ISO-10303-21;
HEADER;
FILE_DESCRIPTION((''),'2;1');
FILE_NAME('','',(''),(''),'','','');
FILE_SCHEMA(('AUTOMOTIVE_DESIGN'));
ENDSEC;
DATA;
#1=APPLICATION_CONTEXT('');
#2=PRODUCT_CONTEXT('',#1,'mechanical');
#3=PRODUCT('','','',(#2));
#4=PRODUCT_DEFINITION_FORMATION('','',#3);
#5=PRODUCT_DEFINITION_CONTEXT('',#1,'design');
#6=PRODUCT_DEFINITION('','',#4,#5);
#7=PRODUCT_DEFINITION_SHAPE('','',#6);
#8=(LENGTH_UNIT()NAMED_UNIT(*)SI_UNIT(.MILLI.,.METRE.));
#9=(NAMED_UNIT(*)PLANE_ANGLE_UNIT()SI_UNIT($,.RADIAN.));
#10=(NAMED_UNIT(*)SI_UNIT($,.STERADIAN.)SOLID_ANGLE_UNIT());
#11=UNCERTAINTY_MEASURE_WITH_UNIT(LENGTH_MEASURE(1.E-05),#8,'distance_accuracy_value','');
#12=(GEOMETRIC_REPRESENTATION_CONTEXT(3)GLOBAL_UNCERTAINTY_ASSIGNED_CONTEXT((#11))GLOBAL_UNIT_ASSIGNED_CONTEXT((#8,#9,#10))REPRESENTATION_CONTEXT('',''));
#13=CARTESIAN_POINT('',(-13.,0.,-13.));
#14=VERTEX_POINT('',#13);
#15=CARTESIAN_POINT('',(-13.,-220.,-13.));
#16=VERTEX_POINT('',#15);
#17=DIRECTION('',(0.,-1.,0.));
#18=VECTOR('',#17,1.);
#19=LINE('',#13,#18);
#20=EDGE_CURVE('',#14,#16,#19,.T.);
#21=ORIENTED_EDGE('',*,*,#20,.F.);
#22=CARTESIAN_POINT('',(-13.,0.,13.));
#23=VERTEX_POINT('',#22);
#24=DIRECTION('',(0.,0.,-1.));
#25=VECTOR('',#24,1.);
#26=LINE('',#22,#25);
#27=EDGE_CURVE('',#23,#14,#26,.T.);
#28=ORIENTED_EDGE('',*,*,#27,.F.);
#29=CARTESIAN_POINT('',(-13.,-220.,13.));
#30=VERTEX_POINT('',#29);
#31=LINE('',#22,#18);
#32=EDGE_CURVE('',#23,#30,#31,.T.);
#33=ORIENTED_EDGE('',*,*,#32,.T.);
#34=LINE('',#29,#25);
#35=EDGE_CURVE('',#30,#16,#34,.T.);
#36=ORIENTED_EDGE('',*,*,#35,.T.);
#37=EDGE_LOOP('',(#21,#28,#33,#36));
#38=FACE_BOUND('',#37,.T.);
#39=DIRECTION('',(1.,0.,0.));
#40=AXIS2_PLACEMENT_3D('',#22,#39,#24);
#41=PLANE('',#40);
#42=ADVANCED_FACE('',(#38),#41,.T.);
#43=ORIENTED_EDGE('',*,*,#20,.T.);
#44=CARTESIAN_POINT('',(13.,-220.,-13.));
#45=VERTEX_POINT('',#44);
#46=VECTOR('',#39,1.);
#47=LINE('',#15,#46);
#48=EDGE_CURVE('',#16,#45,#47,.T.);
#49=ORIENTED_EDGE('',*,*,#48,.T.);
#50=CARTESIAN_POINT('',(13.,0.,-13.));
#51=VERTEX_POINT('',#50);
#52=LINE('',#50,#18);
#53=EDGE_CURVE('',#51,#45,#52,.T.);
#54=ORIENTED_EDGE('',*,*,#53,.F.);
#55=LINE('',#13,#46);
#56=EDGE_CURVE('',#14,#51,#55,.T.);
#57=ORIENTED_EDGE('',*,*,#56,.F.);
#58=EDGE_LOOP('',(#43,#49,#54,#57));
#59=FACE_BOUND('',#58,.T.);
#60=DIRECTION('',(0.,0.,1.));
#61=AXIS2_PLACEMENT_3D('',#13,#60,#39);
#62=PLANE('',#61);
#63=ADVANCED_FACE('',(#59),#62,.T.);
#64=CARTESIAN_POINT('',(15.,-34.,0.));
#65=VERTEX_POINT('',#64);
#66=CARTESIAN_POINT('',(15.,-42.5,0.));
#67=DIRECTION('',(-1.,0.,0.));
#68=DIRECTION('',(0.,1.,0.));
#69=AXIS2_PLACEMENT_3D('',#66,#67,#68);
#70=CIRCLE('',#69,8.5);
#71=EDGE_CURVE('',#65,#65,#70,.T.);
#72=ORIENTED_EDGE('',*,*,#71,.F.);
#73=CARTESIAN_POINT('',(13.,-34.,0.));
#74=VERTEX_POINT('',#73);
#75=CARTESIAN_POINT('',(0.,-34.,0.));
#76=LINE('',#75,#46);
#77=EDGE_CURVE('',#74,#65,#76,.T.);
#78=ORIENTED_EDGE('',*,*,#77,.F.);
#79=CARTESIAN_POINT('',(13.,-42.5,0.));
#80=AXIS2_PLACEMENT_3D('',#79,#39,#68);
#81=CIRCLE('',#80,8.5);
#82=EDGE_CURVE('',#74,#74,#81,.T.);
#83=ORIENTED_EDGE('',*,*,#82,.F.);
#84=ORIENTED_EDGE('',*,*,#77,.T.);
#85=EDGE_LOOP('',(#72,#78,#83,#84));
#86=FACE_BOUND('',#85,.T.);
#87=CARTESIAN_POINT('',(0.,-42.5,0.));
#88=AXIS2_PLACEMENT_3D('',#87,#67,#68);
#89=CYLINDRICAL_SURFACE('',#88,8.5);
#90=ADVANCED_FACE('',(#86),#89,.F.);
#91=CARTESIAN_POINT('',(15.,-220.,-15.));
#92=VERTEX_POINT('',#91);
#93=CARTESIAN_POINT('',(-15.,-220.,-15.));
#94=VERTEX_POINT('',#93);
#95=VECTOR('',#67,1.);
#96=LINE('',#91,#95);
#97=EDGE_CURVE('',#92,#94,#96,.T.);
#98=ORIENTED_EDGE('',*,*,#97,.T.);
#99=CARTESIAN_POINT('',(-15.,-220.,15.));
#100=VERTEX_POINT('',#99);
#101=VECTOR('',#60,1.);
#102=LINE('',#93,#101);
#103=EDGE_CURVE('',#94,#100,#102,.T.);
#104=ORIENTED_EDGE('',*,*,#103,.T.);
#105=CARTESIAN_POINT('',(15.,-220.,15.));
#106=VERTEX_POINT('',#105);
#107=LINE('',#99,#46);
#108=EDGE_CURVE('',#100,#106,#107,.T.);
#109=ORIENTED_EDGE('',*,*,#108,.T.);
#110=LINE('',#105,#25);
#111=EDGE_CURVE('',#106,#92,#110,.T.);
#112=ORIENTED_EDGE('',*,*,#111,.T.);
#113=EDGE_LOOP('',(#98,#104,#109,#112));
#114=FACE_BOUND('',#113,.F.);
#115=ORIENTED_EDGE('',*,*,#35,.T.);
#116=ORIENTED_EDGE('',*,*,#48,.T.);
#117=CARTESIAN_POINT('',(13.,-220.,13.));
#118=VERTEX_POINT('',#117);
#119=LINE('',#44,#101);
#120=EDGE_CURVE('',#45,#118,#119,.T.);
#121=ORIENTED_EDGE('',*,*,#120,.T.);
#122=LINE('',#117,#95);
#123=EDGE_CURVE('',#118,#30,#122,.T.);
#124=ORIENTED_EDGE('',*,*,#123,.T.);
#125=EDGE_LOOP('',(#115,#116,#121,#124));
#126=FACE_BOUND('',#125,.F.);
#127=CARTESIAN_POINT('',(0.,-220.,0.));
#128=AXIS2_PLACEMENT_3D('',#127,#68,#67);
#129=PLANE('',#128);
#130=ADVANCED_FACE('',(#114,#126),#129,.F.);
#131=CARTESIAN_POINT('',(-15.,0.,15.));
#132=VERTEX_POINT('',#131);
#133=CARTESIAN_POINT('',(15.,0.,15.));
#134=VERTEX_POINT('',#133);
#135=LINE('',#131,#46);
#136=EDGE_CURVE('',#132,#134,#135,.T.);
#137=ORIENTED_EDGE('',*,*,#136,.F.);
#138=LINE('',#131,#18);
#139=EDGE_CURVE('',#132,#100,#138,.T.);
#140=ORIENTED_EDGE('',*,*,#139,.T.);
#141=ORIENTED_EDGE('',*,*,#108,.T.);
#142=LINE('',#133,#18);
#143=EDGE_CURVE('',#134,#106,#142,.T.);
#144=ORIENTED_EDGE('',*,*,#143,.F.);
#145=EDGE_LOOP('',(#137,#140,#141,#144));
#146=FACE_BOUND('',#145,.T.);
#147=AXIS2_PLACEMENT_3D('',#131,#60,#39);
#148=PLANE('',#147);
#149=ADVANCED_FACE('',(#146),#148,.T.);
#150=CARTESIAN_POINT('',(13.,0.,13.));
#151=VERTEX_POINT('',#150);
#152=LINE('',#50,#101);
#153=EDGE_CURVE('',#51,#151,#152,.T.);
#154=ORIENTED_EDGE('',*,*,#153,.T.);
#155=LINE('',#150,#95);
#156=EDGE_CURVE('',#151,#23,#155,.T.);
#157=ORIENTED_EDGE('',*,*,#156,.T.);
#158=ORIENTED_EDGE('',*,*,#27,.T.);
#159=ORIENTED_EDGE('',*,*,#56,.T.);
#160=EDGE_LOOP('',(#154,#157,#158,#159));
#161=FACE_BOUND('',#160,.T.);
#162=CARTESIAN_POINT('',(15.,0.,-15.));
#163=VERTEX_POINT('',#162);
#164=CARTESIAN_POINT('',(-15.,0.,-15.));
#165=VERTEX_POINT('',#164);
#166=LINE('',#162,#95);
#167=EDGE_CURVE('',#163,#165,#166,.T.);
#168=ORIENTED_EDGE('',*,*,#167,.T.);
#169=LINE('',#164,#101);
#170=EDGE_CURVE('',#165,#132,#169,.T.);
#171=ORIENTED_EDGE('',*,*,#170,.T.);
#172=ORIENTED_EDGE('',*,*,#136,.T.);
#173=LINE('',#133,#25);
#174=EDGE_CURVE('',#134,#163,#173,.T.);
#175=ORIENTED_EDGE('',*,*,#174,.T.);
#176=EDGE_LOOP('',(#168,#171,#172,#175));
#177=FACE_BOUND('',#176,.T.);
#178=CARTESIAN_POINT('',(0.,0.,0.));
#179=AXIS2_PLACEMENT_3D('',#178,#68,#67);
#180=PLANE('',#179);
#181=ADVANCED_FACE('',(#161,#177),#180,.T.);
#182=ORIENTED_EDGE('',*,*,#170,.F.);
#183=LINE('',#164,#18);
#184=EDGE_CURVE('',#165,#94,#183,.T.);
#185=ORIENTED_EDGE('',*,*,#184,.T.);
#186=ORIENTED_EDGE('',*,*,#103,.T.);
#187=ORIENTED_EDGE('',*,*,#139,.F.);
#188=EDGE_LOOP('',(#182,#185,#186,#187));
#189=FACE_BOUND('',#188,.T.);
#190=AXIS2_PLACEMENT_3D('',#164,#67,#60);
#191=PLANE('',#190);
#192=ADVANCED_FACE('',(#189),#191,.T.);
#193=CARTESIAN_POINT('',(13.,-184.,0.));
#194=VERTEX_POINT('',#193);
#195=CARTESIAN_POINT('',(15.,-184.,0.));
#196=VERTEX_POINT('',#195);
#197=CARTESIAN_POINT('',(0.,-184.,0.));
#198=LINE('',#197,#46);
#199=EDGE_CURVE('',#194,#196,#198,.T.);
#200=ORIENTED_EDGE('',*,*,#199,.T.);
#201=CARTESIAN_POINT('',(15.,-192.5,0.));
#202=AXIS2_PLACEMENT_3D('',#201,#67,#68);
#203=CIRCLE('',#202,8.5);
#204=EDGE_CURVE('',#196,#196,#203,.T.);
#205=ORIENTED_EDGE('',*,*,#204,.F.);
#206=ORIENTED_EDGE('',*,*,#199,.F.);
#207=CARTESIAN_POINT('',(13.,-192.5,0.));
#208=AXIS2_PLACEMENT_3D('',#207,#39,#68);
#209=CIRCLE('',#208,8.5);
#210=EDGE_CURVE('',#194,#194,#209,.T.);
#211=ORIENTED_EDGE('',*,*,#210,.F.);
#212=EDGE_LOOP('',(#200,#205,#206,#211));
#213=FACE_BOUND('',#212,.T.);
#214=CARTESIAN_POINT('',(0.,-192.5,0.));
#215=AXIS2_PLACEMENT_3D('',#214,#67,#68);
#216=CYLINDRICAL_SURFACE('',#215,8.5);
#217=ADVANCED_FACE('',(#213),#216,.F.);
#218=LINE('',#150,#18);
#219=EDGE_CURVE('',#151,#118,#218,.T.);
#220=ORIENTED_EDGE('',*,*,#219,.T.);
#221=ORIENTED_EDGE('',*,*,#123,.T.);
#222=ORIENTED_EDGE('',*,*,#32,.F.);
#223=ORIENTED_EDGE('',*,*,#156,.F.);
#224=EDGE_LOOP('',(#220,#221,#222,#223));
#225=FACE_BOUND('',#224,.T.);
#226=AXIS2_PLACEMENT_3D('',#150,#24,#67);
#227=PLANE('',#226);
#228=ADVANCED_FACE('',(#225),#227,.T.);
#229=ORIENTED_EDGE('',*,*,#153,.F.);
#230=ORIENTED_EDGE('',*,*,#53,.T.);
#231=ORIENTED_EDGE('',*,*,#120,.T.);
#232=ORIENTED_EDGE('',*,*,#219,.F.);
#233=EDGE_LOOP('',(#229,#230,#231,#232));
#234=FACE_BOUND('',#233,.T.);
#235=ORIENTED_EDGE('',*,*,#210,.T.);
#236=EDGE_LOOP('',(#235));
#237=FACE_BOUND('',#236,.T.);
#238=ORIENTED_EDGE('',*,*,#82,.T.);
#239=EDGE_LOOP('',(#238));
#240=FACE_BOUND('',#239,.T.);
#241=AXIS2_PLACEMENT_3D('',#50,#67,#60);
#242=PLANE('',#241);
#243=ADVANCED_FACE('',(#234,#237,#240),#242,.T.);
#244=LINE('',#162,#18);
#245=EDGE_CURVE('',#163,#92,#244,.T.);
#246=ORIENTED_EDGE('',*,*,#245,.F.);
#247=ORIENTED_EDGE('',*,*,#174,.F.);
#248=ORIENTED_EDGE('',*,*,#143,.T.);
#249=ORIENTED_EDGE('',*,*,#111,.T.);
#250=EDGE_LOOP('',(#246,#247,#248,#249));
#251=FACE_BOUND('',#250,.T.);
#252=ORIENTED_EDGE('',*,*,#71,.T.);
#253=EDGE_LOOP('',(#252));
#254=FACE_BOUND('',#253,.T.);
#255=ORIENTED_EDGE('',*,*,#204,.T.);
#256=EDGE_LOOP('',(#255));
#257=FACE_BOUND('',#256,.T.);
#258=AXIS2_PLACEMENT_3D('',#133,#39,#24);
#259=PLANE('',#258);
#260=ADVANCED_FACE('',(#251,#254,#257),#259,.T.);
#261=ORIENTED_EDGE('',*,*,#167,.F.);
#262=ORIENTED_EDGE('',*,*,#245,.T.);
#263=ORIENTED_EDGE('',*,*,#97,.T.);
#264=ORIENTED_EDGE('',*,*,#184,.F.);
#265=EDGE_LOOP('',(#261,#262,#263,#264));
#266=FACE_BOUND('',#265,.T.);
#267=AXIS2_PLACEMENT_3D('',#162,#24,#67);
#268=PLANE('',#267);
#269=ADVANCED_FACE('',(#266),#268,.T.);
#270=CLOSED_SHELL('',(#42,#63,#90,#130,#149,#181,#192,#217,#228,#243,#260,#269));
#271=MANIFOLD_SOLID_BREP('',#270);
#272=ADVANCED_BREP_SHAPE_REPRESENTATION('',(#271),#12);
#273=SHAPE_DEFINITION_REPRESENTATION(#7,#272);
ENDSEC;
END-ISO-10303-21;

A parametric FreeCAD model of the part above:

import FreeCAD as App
import Part
import Sketcher
from FreeCAD import Vector

doc = App.newDocument("Part")
body = doc.addObject("PartDesign::Body", "Body")

# Sketch on XZ plane
sketch1 = doc.addObject("Sketcher::SketchObject", "Sketch")
body.addObject(sketch1)
sketch1.AttachmentSupport = (doc.XZ_Plane, [""])
sketch1.MapMode = "FlatFace"
sketch1.addGeometry(Part.LineSegment(Vector(-15, -15, 0), Vector(-15, 15, 0)), False)
sketch1.addGeometry(Part.LineSegment(Vector(-15, 15, 0), Vector(15, 15, 0)), False)
sketch1.addGeometry(Part.LineSegment(Vector(15, 15, 0), Vector(15, -15, 0)), False)
sketch1.addGeometry(Part.LineSegment(Vector(15, -15, 0), Vector(-15, -15, 0)), False)
sketch1.addGeometry(Part.LineSegment(Vector(13, -13, 0), Vector(13, 13, 0)), False)
sketch1.addGeometry(Part.LineSegment(Vector(13, 13, 0), Vector(-13, 13, 0)), False)
sketch1.addGeometry(Part.LineSegment(Vector(-13, 13, 0), Vector(-13, -13, 0)), False)
sketch1.addGeometry(Part.LineSegment(Vector(-13, -13, 0), Vector(13, -13, 0)), False)
sketch1.addConstraint(Sketcher.Constraint("Coincident", 0, 2, 1, 1))
sketch1.addConstraint(Sketcher.Constraint("Coincident", 1, 2, 2, 1))
sketch1.addConstraint(Sketcher.Constraint("Coincident", 2, 2, 3, 1))
sketch1.addConstraint(Sketcher.Constraint("Coincident", 3, 2, 0, 1))
sketch1.addConstraint(Sketcher.Constraint("Coincident", 4, 2, 5, 1))
sketch1.addConstraint(Sketcher.Constraint("Coincident", 5, 2, 6, 1))
sketch1.addConstraint(Sketcher.Constraint("Coincident", 6, 2, 7, 1))
sketch1.addConstraint(Sketcher.Constraint("Coincident", 7, 2, 4, 1))
sketch1.addConstraint(Sketcher.Constraint("Vertical", 0))
sketch1.addConstraint(Sketcher.Constraint("Horizontal", 1))
sketch1.addConstraint(Sketcher.Constraint("Vertical", 2))
sketch1.addConstraint(Sketcher.Constraint("Horizontal", 3))
sketch1.addConstraint(Sketcher.Constraint("Vertical", 4))
sketch1.addConstraint(Sketcher.Constraint("Horizontal", 5))
sketch1.addConstraint(Sketcher.Constraint("Vertical", 6))
sketch1.addConstraint(Sketcher.Constraint("Horizontal", 7))
sketch1.addConstraint(Sketcher.Constraint("Symmetric", 0, 2, 2, 2, -1, 1))
sketch1.addConstraint(Sketcher.Constraint("Symmetric", 4, 2, 6, 2, -1, 1))
sketch1.addConstraint(Sketcher.Constraint("Equal", 3, 0))
sketch1.addConstraint(Sketcher.Constraint("Equal", 7, 4))
sketch1.addConstraint(Sketcher.Constraint("DistanceX", 1, 1, 1, 2, 30.0))
sketch1.addConstraint(Sketcher.Constraint("DistanceX", 4, 2, 1, 2, 2.0))
pad1 = doc.addObject("PartDesign::Pad", "Pad")
body.addObject(pad1)
pad1.Profile = sketch1
pad1.Length = 220

# Sketch on YZ plane
sketch2 = doc.addObject("Sketcher::SketchObject", "Sketch001")
body.addObject(sketch2)
sketch2.AttachmentSupport = (doc.YZ_Plane, [""])
sketch2.MapMode = "FlatFace"
sketch2.addGeometry(Part.Circle(Vector(-192, 0, 0), Vector(0, 0, 1), 8), False)
sketch2.addConstraint(Sketcher.Constraint("PointOnObject", 0, 3, -1))
sketch2.addConstraint(Sketcher.Constraint("Diameter", 0, 17.0))
sketch2.addConstraint(Sketcher.Constraint("DistanceX", 0, 3, -1, 1, 192.5))
pocket1 = doc.addObject("PartDesign::Pocket", "Pocket")
body.addObject(pocket1)
pocket1.Profile = sketch2
pocket1.Type = "ThroughAll"
pocket1.Reversed = True
doc.recompute()

linearpattern = doc.addObject("PartDesign::LinearPattern", "LinearPattern")
body.addObject(linearpattern)
linearpattern.Originals = [pocket1]
linearpattern.Direction = (doc.Y_Axis, [""])
linearpattern.Mode = "offset"
linearpattern.Offset = 150
linearpattern.Occurrences = 2
body.Tip = linearpattern

doc.recompute()
